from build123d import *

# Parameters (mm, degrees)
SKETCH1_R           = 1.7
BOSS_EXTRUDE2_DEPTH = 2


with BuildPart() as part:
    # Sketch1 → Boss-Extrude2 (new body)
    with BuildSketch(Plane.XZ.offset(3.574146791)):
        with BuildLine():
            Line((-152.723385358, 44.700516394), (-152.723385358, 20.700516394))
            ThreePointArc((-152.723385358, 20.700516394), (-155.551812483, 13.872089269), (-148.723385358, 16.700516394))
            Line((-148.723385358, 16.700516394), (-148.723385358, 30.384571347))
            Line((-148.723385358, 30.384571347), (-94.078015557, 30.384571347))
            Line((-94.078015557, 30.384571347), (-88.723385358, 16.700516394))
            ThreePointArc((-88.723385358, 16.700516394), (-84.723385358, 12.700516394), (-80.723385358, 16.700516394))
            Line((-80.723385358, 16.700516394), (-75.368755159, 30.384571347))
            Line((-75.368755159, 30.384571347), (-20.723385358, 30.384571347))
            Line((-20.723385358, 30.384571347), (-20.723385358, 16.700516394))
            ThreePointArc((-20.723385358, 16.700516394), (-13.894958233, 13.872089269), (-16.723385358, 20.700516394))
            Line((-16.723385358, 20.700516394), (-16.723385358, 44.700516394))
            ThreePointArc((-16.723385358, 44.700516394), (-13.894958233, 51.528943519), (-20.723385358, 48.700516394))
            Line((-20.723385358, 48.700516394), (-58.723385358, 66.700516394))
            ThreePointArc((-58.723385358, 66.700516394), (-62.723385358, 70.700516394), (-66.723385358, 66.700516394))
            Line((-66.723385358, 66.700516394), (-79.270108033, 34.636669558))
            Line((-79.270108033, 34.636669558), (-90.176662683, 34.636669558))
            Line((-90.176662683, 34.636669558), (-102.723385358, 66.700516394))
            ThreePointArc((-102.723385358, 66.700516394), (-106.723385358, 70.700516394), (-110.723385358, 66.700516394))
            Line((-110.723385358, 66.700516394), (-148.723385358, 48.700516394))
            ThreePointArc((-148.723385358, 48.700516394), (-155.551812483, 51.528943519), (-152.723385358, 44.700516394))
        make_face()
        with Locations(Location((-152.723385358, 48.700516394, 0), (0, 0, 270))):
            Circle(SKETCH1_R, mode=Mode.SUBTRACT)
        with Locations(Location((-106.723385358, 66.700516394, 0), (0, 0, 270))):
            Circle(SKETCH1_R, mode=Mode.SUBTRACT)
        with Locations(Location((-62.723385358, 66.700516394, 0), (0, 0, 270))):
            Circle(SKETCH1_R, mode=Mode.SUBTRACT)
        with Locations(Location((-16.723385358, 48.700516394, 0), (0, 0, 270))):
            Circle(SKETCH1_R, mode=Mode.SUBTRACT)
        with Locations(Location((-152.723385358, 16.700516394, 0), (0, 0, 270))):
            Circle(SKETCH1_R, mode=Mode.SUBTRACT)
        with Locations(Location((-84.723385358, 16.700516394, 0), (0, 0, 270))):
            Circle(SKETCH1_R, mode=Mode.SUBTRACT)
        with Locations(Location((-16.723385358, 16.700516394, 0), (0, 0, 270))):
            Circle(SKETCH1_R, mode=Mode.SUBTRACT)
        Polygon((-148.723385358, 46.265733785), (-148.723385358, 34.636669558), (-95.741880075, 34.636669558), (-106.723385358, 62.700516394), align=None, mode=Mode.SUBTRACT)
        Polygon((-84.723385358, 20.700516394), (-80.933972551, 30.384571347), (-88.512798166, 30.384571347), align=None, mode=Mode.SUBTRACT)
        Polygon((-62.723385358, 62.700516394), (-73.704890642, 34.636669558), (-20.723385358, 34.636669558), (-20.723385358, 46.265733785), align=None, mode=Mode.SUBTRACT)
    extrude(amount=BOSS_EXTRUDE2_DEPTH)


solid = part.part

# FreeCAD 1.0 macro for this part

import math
import FreeCAD as App
import Part
import Sketcher
Q = App.Units.Quantity

doc = App.newDocument("Part")
body = doc.addObject("PartDesign::Body", "Body")

# Sketch on XZ plane
sketch1 = body.newObject("Sketcher::SketchObject", "Sketch")
sketch1.AttachmentSupport = (doc.getObject("XZ_Plane"), [""])
sketch1.MapMode = "FlatFace"
sketch1.AttachmentOffset = App.Placement(App.Vector(0, 0, 3.574147), App.Rotation())
sketch1.addGeometry([
    Part.LineSegment(App.Vector(-152.723385, 44.700516, 0), App.Vector(-152.723385, 20.700516, 0)),  # 0
    Part.ArcOfCircle(Part.Circle(App.Vector(-152.723385, 16.700516, 0), App.Vector(0, 0, 1), 4), math.radians(90), math.radians(360)),  # 1
    Part.LineSegment(App.Vector(-148.723385, 16.700516, 0), App.Vector(-148.723385, 30.384571, 0)),  # 2
    Part.LineSegment(App.Vector(-148.723385, 30.384571, 0), App.Vector(-94.078016, 30.384571, 0)),  # 3
    Part.LineSegment(App.Vector(-94.078016, 30.384571, 0), App.Vector(-88.723385, 16.700516, 0)),  # 4
    Part.ArcOfCircle(Part.Circle(App.Vector(-84.723385, 16.700516, 0), App.Vector(0, 0, 1), 4), math.radians(180), math.radians(360)),  # 5
    Part.LineSegment(App.Vector(-80.723385, 16.700516, 0), App.Vector(-75.368755, 30.384571, 0)),  # 6
    Part.LineSegment(App.Vector(-75.368755, 30.384571, 0), App.Vector(-20.723385, 30.384571, 0)),  # 7
    Part.LineSegment(App.Vector(-20.723385, 30.384571, 0), App.Vector(-20.723385, 16.700516, 0)),  # 8
    Part.ArcOfCircle(Part.Circle(App.Vector(-16.723385, 16.700516, 0), App.Vector(0, 0, 1), 4), math.radians(180), math.radians(450)),  # 9
    Part.LineSegment(App.Vector(-16.723385, 20.700516, 0), App.Vector(-16.723385, 44.700516, 0)),  # 10
    Part.ArcOfCircle(Part.Circle(App.Vector(-16.723385, 48.700516, 0), App.Vector(0, 0, 1), 4), math.radians(-90), math.radians(180)),  # 11
    Part.LineSegment(App.Vector(-20.723385, 48.700516, 0), App.Vector(-58.723385, 66.700516, 0)),  # 12
    Part.ArcOfCircle(Part.Circle(App.Vector(-62.723385, 66.700516, 0), App.Vector(0, 0, 1), 4), math.radians(0), math.radians(180)),  # 13
    Part.LineSegment(App.Vector(-66.723385, 66.700516, 0), App.Vector(-79.270108, 34.63667, 0)),  # 14
    Part.LineSegment(App.Vector(-79.270108, 34.63667, 0), App.Vector(-90.176663, 34.63667, 0)),  # 15
    Part.LineSegment(App.Vector(-90.176663, 34.63667, 0), App.Vector(-102.723385, 66.700516, 0)),  # 16
    Part.ArcOfCircle(Part.Circle(App.Vector(-106.723385, 66.700516, 0), App.Vector(0, 0, 1), 4), math.radians(0), math.radians(180)),  # 17
    Part.LineSegment(App.Vector(-110.723385, 66.700516, 0), App.Vector(-148.723385, 48.700516, 0)),  # 18
    Part.ArcOfCircle(Part.Circle(App.Vector(-152.723385, 48.700516, 0), App.Vector(0, 0, 1), 4), math.radians(0), math.radians(270)),  # 19
    Part.Circle(App.Vector(-152.723385, 16.700516, 0), App.Vector(0, 0, 1), 1.7),  # 20
    Part.LineSegment(App.Vector(-80.933973, 30.384571, 0), App.Vector(-84.723385, 20.700516, 0)),  # 21
    Part.LineSegment(App.Vector(-84.723385, 20.700516, 0), App.Vector(-88.512798, 30.384571, 0)),  # 22
    Part.LineSegment(App.Vector(-88.512798, 30.384571, 0), App.Vector(-80.933973, 30.384571, 0)),  # 23
    Part.Circle(App.Vector(-84.723385, 16.700516, 0), App.Vector(0, 0, 1), 1.7),  # 24
    Part.Circle(App.Vector(-16.723385, 16.700516, 0), App.Vector(0, 0, 1), 1.7),  # 25
    Part.Circle(App.Vector(-152.723385, 48.700516, 0), App.Vector(0, 0, 1), 1.7),  # 26
    Part.LineSegment(App.Vector(-148.723385, 34.63667, 0), App.Vector(-148.723385, 46.265734, 0)),  # 27
    Part.LineSegment(App.Vector(-148.723385, 46.265734, 0), App.Vector(-106.723385, 62.700516, 0)),  # 28
    Part.LineSegment(App.Vector(-106.723385, 62.700516, 0), App.Vector(-95.74188, 34.63667, 0)),  # 29
    Part.LineSegment(App.Vector(-95.74188, 34.63667, 0), App.Vector(-148.723385, 34.63667, 0)),  # 30
    Part.Circle(App.Vector(-106.723385, 66.700516, 0), App.Vector(0, 0, 1), 1.7),  # 31
    Part.LineSegment(App.Vector(-73.704891, 34.63667, 0), App.Vector(-62.723385, 62.700516, 0)),  # 32
    Part.LineSegment(App.Vector(-62.723385, 62.700516, 0), App.Vector(-20.723385, 46.265734, 0)),  # 33
    Part.LineSegment(App.Vector(-20.723385, 46.265734, 0), App.Vector(-20.723385, 34.63667, 0)),  # 34
    Part.LineSegment(App.Vector(-20.723385, 34.63667, 0), App.Vector(-73.704891, 34.63667, 0)),  # 35
    Part.Circle(App.Vector(-16.723385, 48.700516, 0), App.Vector(0, 0, 1), 1.7),  # 36
    Part.Circle(App.Vector(-62.723385, 66.700516, 0), App.Vector(0, 0, 1), 1.7),  # 37
], False)
sketch1.addConstraint([
    Sketcher.Constraint("Coincident", 0, 2, 1, 1),
    Sketcher.Constraint("Tangent", 1, 2, 2, 1),
    Sketcher.Constraint("Coincident", 2, 2, 3, 1),
    Sketcher.Constraint("Coincident", 3, 2, 4, 1),
    Sketcher.Constraint("Coincident", 4, 2, 5, 1),
    Sketcher.Constraint("Coincident", 5, 2, 6, 1),
    Sketcher.Constraint("Coincident", 6, 2, 7, 1),
    Sketcher.Constraint("Coincident", 7, 2, 8, 1),
    Sketcher.Constraint("Tangent", 8, 2, 9, 1),
    Sketcher.Constraint("Coincident", 9, 2, 10, 1),
    Sketcher.Constraint("Coincident", 10, 2, 11, 1),
    Sketcher.Constraint("Coincident", 11, 2, 12, 1),
    Sketcher.Constraint("Coincident", 12, 2, 13, 1),
    Sketcher.Constraint("Coincident", 13, 2, 14, 1),
    Sketcher.Constraint("Coincident", 14, 2, 15, 1),
    Sketcher.Constraint("Coincident", 15, 2, 16, 1),
    Sketcher.Constraint("Coincident", 16, 2, 17, 1),
    Sketcher.Constraint("Coincident", 17, 2, 18, 1),
    Sketcher.Constraint("Coincident", 18, 2, 19, 1),
    Sketcher.Constraint("Coincident", 19, 2, 0, 1),
    Sketcher.Constraint("Coincident", 21, 2, 22, 1),
    Sketcher.Constraint("Coincident", 22, 2, 23, 1),
    Sketcher.Constraint("Coincident", 23, 2, 21, 1),
    Sketcher.Constraint("Coincident", 27, 2, 28, 1),
    Sketcher.Constraint("Coincident", 28, 2, 29, 1),
    Sketcher.Constraint("Coincident", 29, 2, 30, 1),
    Sketcher.Constraint("Coincident", 30, 2, 27, 1),
    Sketcher.Constraint("Coincident", 32, 2, 33, 1),
    Sketcher.Constraint("Coincident", 33, 2, 34, 1),
    Sketcher.Constraint("Coincident", 34, 2, 35, 1),
    Sketcher.Constraint("Coincident", 35, 2, 32, 1),
    Sketcher.Constraint("Vertical", 0),
    Sketcher.Constraint("Vertical", 2),
    Sketcher.Constraint("Horizontal", 3),
    Sketcher.Constraint("Horizontal", 7),
    Sketcher.Constraint("Vertical", 8),
    Sketcher.Constraint("Vertical", 10),
    Sketcher.Constraint("Horizontal", 15),
    Sketcher.Constraint("Horizontal", 23),
    Sketcher.Constraint("Vertical", 27),
    Sketcher.Constraint("Horizontal", 30),
    Sketcher.Constraint("Vertical", 34),
    Sketcher.Constraint("Horizontal", 35),
    Sketcher.Constraint("Coincident", 20, 3, 1, 3),
    Sketcher.Constraint("Coincident", 24, 3, 5, 3),
    Sketcher.Constraint("Coincident", 25, 3, 9, 3),
    Sketcher.Constraint("Coincident", 26, 3, 19, 3),
    Sketcher.Constraint("Coincident", 31, 3, 17, 3),
    Sketcher.Constraint("Coincident", 36, 3, 11, 3),
    Sketcher.Constraint("Coincident", 37, 3, 13, 3),
    Sketcher.Constraint("Equal", 1, 5),
    Sketcher.Constraint("Equal", 5, 9),
    Sketcher.Constraint("Equal", 9, 11),
    Sketcher.Constraint("Equal", 11, 13),
    Sketcher.Constraint("Equal", 13, 17),
    Sketcher.Constraint("Equal", 17, 19),
    Sketcher.Constraint("Equal", 20, 24),
    Sketcher.Constraint("Equal", 24, 25),
    Sketcher.Constraint("Equal", 25, 26),
    Sketcher.Constraint("Equal", 26, 31),
    Sketcher.Constraint("Equal", 31, 36),
    Sketcher.Constraint("Equal", 36, 37),
    Sketcher.Constraint("Parallel", 6, 14),
    Sketcher.Constraint("Parallel", 4, 16),
    Sketcher.Constraint("Parallel", 14, 21),
    Sketcher.Constraint("Parallel", 16, 22),
    Sketcher.Constraint("Perpendicular", 22, 28),
    Sketcher.Constraint("Perpendicular", 28, 29),
    Sketcher.Constraint("Parallel", 21, 32),
    Sketcher.Constraint("Perpendicular", 32, 33),
    Sketcher.Constraint("Horizontal", 1, 3, 5, 3),
    Sketcher.Constraint("Horizontal", 5, 3, 9, 3),
    Sketcher.Constraint("Horizontal", 13, 3, 17, 3),
    Sketcher.Constraint("Horizontal", 11, 3, 19, 3),
    Sketcher.Constraint("Horizontal", 1, 2, 4, 2),
    Sketcher.Constraint("Horizontal", 4, 2, 5, 2),
    Sketcher.Constraint("Horizontal", 3, 2, 6, 2),
    Sketcher.Constraint("Horizontal", 36, 3, 11, 2),
    Sketcher.Constraint("Horizontal", 37, 3, 12, 2),
    Sketcher.Constraint("Horizontal", 12, 2, 13, 2),
    Sketcher.Constraint("Horizontal", 13, 2, 16, 2),
    Sketcher.Constraint("Horizontal", 16, 2, 17, 2),
    Sketcher.Constraint("Horizontal", 11, 2, 18, 2),
    Sketcher.Constraint("Horizontal", 9, 2, 21, 2),
    Sketcher.Constraint("Horizontal", 7, 2, 22, 2),
    Sketcher.Constraint("Horizontal", 15, 2, 29, 2),
    Sketcher.Constraint("Horizontal", 28, 2, 32, 2),
    Sketcher.Constraint("Horizontal", 27, 2, 33, 2),
    Sketcher.Constraint("Horizontal", 30, 2, 34, 2),
    Sketcher.Constraint("Vertical", 9, 3, 11, 3),
    Sketcher.Constraint("Vertical", 1, 3, 19, 3),
    Sketcher.Constraint("Vertical", 26, 3, 0, 2),
    Sketcher.Constraint("Vertical", 36, 3, 9, 2),
    Sketcher.Constraint("Vertical", 24, 3, 21, 2),
    Sketcher.Constraint("Vertical", 18, 2, 27, 2),
    Sketcher.Constraint("Vertical", 31, 3, 28, 2),
    Sketcher.Constraint("Vertical", 37, 3, 32, 2),
    Sketcher.Constraint("Vertical", 11, 2, 33, 2),
    Sketcher.Constraint("Equal", 3, 7),
    Sketcher.Constraint("Equal", 30, 35),
    Sketcher.Constraint("Radius", 1, Q("4 mm")),
    Sketcher.Constraint("Diameter", 20, Q("3.4 mm")),
    Sketcher.Constraint("DistanceY", 0, 2, 0, 1, Q("24 mm")),
    Sketcher.Constraint("DistanceX", 1, 3, 5, 3, Q("68 mm")),
    Sketcher.Constraint("DistanceX", 13, 3, 11, 3, Q("46 mm")),
    Sketcher.Constraint("DistanceY", 11, 3, 13, 3, Q("18 mm")),
    Sketcher.Constraint("DistanceY", 28, 2, 17, 3, Q("4 mm")),
    Sketcher.Constraint("Distance", 4, Q("14.694401 mm")),
    Sketcher.Constraint("DistanceX", 3, 1, 3, 2, Q("54.64537 mm")),
    Sketcher.Constraint("DistanceX", 22, 2, -1, 1, Q("88.512798 mm")),
    Sketcher.Constraint("DistanceY", 6, 2, 14, 2, Q("4.252098 mm")),
    Sketcher.Constraint("DistanceY", -1, 1, 2, 2, Q("30.384571 mm")),
])
pad1 = body.newObject("PartDesign::Pad", "Pad")
pad1.Profile = sketch1
pad1.Length = 2

doc.recompute()
